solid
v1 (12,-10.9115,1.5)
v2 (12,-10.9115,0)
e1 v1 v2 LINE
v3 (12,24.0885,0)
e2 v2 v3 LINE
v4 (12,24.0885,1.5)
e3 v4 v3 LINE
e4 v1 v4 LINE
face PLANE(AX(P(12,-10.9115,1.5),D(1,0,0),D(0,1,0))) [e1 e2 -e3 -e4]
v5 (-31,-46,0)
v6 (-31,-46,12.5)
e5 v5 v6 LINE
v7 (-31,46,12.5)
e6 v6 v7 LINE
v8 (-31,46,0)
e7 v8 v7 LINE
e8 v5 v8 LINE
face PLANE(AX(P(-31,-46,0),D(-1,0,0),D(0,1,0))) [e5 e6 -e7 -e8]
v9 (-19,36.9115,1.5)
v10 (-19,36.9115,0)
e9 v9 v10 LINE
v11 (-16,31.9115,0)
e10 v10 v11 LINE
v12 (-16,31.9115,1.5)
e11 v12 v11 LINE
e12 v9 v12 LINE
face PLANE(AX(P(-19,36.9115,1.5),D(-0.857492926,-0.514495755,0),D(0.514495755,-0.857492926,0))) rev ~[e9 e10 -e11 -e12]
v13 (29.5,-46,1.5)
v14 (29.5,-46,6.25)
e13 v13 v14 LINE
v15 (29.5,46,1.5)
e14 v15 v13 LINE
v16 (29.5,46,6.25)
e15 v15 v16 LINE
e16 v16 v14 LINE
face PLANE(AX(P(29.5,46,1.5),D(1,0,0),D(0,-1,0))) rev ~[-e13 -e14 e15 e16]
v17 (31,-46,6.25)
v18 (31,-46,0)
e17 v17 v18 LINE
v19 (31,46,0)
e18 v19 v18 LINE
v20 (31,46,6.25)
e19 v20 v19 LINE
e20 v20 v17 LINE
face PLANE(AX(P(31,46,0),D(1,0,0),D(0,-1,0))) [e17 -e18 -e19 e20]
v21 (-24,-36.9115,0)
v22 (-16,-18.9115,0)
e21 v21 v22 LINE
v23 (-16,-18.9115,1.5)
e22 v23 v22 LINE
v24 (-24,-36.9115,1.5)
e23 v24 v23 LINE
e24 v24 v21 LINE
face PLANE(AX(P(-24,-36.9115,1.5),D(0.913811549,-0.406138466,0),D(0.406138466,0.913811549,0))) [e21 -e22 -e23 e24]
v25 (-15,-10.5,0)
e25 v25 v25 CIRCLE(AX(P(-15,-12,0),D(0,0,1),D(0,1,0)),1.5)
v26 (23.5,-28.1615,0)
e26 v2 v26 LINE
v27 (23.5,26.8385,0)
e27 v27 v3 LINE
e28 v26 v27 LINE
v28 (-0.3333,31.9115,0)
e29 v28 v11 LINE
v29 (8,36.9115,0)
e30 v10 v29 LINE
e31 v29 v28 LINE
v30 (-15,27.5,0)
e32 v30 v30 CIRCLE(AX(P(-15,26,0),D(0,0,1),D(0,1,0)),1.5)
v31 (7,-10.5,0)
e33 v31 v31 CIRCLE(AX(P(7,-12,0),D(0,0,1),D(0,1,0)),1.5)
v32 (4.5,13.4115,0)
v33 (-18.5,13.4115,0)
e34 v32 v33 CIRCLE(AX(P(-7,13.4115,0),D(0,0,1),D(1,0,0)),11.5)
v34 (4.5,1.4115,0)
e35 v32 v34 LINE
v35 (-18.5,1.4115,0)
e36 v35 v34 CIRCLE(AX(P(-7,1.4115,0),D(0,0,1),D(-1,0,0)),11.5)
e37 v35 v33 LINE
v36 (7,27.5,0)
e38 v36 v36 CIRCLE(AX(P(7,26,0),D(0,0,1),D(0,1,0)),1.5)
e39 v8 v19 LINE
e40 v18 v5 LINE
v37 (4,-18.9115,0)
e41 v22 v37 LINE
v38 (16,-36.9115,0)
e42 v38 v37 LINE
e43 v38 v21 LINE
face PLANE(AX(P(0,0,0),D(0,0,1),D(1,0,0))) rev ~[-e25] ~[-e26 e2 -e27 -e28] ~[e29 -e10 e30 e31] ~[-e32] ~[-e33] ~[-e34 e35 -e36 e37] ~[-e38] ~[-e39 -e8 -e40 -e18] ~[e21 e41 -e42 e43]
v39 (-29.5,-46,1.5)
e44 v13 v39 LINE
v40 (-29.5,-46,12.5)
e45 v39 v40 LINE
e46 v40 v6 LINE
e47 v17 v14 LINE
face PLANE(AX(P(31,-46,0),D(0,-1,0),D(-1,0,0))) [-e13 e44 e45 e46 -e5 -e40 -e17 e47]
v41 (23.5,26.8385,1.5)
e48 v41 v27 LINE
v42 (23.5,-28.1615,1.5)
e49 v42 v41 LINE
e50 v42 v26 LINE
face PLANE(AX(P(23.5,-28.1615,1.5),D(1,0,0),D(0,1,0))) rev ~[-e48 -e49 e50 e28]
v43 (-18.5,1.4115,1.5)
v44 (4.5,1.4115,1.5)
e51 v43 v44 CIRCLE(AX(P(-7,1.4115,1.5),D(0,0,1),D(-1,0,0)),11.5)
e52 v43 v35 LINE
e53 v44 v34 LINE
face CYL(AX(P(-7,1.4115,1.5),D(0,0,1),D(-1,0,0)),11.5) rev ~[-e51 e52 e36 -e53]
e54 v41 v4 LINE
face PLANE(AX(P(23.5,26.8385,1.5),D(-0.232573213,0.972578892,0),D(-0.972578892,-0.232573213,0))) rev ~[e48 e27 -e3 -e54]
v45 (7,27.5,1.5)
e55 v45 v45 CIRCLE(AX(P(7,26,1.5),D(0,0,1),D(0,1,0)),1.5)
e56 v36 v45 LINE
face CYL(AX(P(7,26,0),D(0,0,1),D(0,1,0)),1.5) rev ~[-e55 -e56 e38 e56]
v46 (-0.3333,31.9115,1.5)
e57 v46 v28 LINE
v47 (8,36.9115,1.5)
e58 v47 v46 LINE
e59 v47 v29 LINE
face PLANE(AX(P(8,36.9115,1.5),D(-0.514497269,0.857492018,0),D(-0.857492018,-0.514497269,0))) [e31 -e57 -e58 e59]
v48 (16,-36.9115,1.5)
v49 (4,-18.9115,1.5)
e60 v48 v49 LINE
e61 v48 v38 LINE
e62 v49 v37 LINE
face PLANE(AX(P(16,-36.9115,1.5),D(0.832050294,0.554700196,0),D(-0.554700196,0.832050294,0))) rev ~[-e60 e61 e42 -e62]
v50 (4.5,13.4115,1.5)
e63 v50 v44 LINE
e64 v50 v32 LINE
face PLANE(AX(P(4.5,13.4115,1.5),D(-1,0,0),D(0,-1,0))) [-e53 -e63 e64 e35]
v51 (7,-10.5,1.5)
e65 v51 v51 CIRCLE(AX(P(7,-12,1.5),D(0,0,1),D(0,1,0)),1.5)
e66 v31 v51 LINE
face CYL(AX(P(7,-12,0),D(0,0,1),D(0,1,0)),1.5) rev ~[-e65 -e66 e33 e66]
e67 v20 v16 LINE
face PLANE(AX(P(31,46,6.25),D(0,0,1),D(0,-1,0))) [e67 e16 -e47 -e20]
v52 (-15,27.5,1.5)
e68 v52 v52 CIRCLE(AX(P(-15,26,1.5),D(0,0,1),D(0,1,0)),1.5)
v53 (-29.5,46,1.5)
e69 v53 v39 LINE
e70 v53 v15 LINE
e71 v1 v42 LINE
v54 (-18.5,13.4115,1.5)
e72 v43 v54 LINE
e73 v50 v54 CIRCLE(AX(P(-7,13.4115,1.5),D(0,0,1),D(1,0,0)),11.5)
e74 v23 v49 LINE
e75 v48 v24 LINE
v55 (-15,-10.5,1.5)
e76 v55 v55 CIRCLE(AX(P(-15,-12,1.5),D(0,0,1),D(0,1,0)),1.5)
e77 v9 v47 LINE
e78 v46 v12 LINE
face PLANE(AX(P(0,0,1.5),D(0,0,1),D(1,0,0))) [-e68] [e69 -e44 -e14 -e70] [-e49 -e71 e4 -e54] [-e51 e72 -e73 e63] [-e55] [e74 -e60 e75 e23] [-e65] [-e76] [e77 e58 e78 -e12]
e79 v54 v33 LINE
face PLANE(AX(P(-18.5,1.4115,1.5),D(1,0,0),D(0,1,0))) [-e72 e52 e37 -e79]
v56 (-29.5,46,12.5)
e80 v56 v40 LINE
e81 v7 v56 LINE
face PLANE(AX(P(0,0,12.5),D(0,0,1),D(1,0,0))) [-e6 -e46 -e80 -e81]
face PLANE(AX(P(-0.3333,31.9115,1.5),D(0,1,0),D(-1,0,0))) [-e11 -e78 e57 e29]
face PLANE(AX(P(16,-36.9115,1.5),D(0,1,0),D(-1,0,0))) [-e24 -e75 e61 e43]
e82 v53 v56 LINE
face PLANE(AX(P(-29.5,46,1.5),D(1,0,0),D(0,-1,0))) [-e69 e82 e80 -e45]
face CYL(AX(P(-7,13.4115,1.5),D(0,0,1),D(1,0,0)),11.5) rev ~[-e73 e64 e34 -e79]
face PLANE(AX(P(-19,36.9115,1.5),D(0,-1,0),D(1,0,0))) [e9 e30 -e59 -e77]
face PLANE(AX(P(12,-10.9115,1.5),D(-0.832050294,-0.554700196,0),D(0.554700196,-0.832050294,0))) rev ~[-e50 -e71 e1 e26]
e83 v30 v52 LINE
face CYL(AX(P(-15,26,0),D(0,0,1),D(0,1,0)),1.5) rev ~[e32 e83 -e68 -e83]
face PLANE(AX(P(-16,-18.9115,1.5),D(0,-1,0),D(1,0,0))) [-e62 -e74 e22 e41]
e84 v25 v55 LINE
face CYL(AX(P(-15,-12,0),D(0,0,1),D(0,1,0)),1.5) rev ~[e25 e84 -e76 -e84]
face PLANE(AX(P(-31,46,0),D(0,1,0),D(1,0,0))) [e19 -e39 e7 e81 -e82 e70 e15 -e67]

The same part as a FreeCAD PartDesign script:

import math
import FreeCAD as App
import Part
import Sketcher
from FreeCAD import Vector
Q = App.Units.Quantity

doc = App.newDocument("Part")
params = doc.addObject("Spreadsheet::Sheet", "Params")
for row, (alias, value) in enumerate([
    ("sketch1_width", "62 mm"),
    ("sketch1_height", "92 mm"),
    ("pad1_length", "1.5 mm"),
    ("sketch2_diameter", "3 mm"),
    ("hole_diameter", "3 mm"),
    ("sketch3_width", "1.5 mm"),
    ("sketch3_height", "92 mm"),
    ("pad2_length", "11 mm"),
    ("sketch4_width", "92 mm"),
    ("sketch4_height", "6.25 mm"),
    ("pocket1_length", "1.5 mm"),
    ("sketch5_radius", "11.5 mm"),
    ("sketch5_width", "27 mm"),
    ("sketch5_width2", "20 mm"),
    ("sketch5_width3", "40 mm"),
    ("sketch5_height", "12 mm"),
    ("pocket2_length", "1.5 mm"),
], start=1):
    params.set(f"A{row}", alias)
    params.set(f"B{row}", "=" + value)
    params.setAlias(f"B{row}", alias)

body = doc.addObject("PartDesign::Body", "Body")

# Sketch on XY plane
sketch1 = doc.addObject("Sketcher::SketchObject", "Sketch")
body.addObject(sketch1)
sketch1.AttachmentSupport = (doc.XY_Plane, [""])
sketch1.MapMode = "FlatFace"
sketch1.addGeometry([
    Part.LineSegment(Vector(31, 46, 0), Vector(-31, 46, 0)),
    Part.LineSegment(Vector(-31, 46, 0), Vector(-31, -46, 0)),
    Part.LineSegment(Vector(-31, -46, 0), Vector(31, -46, 0)),
    Part.LineSegment(Vector(31, -46, 0), Vector(31, 46, 0)),
], False)
sketch1.addConstraint([
    Sketcher.Constraint("Coincident", 0, 2, 1, 1),
    Sketcher.Constraint("Coincident", 1, 2, 2, 1),
    Sketcher.Constraint("Coincident", 2, 2, 3, 1),
    Sketcher.Constraint("Coincident", 3, 2, 0, 1),
    Sketcher.Constraint("Horizontal", 0),
    Sketcher.Constraint("Vertical", 1),
    Sketcher.Constraint("Horizontal", 2),
    Sketcher.Constraint("Vertical", 3),
    Sketcher.Constraint("Symmetric", 0, 2, 2, 2, -1, 1),
    Sketcher.Constraint("DistanceX", 0, 2, 0, 1, Q("62 mm")),
    Sketcher.Constraint("DistanceY", 1, 2, 1, 1, Q("92 mm")),
])
sketch1.setExpression("Constraints[9]", "Params.sketch1_width")
sketch1.setExpression("Constraints[10]", "Params.sketch1_height")
pad1 = doc.addObject("PartDesign::Pad", "Pad")
body.addObject(pad1)
pad1.Profile = sketch1
pad1.setExpression("Length", "Params.pad1_length")

# Sketch on XY plane
sketch2 = doc.addObject("Sketcher::SketchObject", "Sketch001")
body.addObject(sketch2)
sketch2.AttachmentSupport = (doc.XY_Plane, [""])
sketch2.MapMode = "FlatFace"
sketch2.addGeometry([
    Part.Circle(Vector(-15, -12, 0), Vector(0, 0, 1), 1.5),
    Part.Circle(Vector(-15, 26, 0), Vector(0, 0, 1), 1.5),
    Part.Circle(Vector(7, 26, 0), Vector(0, 0, 1), 1.5),
    Part.Circle(Vector(7, -12, 0), Vector(0, 0, 1), 1.5),
], False)
sketch2.addConstraint([
    Sketcher.Constraint("Equal", 0, 1),
    Sketcher.Constraint("Equal", 1, 2),
    Sketcher.Constraint("Equal", 2, 3),
    Sketcher.Constraint("Horizontal", 1, 3, 2, 3),
    Sketcher.Constraint("Horizontal", 0, 3, 3, 3),
    Sketcher.Constraint("Vertical", 0, 3, 1, 3),
    Sketcher.Constraint("Vertical", 2, 3, 3, 3),
    Sketcher.Constraint("Diameter", 0, Q("3 mm")),
    Sketcher.Constraint("DistanceX", 0, 3, -1, 1, Q("15 mm")),
    Sketcher.Constraint("DistanceY", 0, 3, -1, 1, Q("12 mm")),
    Sketcher.Constraint("DistanceY", -1, 1, 1, 3, Q("26 mm")),
    Sketcher.Constraint("DistanceX", -1, 1, 2, 3, Q("7 mm")),
])
sketch2.setExpression("Constraints[7]", "Params.sketch2_diameter")
doc.recompute()
hole = doc.addObject("PartDesign::Hole", "Hole")
body.addObject(hole)
hole.Profile = sketch2
hole.ThreadType = "None"
hole.setExpression("Diameter", "Params.hole_diameter")
hole.DepthType = "ThroughAll"
hole.Reversed = True

# Sketch on XY plane
sketch3 = doc.addObject("Sketcher::SketchObject", "Sketch002")
body.addObject(sketch3)
sketch3.AttachmentSupport = (doc.XY_Plane, [""])
sketch3.MapMode = "FlatFace"
sketch3.AttachmentOffset = App.Placement(Vector(0, 0, 1.5), App.Rotation())
sketch3.addGeometry([
    Part.LineSegment(Vector(29.5, 46, 0), Vector(29.5, -46, 0)),  # 0
    Part.LineSegment(Vector(29.5, -46, 0), Vector(31, -46, 0)),  # 1
    Part.LineSegment(Vector(31, -46, 0), Vector(31, 46, 0)),  # 2
    Part.LineSegment(Vector(31, 46, 0), Vector(29.5, 46, 0)),  # 3
    Part.LineSegment(Vector(-31, 46, 0), Vector(-31, -46, 0)),  # 4
    Part.LineSegment(Vector(-31, -46, 0), Vector(-29.5, -46, 0)),  # 5
    Part.LineSegment(Vector(-29.5, -46, 0), Vector(-29.5, 46, 0)),  # 6
    Part.LineSegment(Vector(-29.5, 46, 0), Vector(-31, 46, 0)),  # 7
], False)
sketch3.addConstraint([
    Sketcher.Constraint("Coincident", 0, 2, 1, 1),
    Sketcher.Constraint("Coincident", 1, 2, 2, 1),
    Sketcher.Constraint("Coincident", 2, 2, 3, 1),
    Sketcher.Constraint("Coincident", 3, 2, 0, 1),
    Sketcher.Constraint("Coincident", 4, 2, 5, 1),
    Sketcher.Constraint("Coincident", 5, 2, 6, 1),
    Sketcher.Constraint("Coincident", 6, 2, 7, 1),
    Sketcher.Constraint("Coincident", 7, 2, 4, 1),
    Sketcher.Constraint("Vertical", 0),
    Sketcher.Constraint("Horizontal", 1),
    Sketcher.Constraint("Vertical", 2),
    Sketcher.Constraint("Horizontal", 3),
    Sketcher.Constraint("Vertical", 4),
    Sketcher.Constraint("Horizontal", 5),
    Sketcher.Constraint("Vertical", 6),
    Sketcher.Constraint("Horizontal", 7),
    Sketcher.Constraint("Symmetric", 2, 2, 4, 2, -1, 1),
    Sketcher.Constraint("Symmetric", 0, 2, 6, 2, -1, 1),
    Sketcher.Constraint("Horizontal", 1, 2, 4, 2),
    Sketcher.Constraint("DistanceX", 1, 1, 1, 2, Q("1.5 mm")),
    Sketcher.Constraint("DistanceX", 5, 2, 0, 2, Q("59 mm")),
    Sketcher.Constraint("DistanceY", 0, 2, 0, 1, Q("92 mm")),
])
sketch3.setExpression("Constraints[19]", "Params.sketch3_width")
sketch3.setExpression("Constraints[21]", "Params.sketch3_height")
pad2 = doc.addObject("PartDesign::Pad", "Pad001")
body.addObject(pad2)
pad2.Profile = sketch3
pad2.setExpression("Length", "Params.pad2_length")

# Sketch on YZ plane
sketch4 = doc.addObject("Sketcher::SketchObject", "Sketch003")
body.addObject(sketch4)
sketch4.AttachmentSupport = (doc.YZ_Plane, [""])
sketch4.MapMode = "FlatFace"
sketch4.AttachmentOffset = App.Placement(Vector(0, 0, 31), App.Rotation())
sketch4.addGeometry([
    Part.LineSegment(Vector(-46, 12, 0), Vector(-46, 6, 0)),
    Part.LineSegment(Vector(-46, 6, 0), Vector(46, 6, 0)),
    Part.LineSegment(Vector(46, 6, 0), Vector(46, 12, 0)),
    Part.LineSegment(Vector(46, 12, 0), Vector(-46, 12, 0)),
], False)
sketch4.addConstraint([
    Sketcher.Constraint("Coincident", 0, 2, 1, 1),
    Sketcher.Constraint("Coincident", 1, 2, 2, 1),
    Sketcher.Constraint("Coincident", 2, 2, 3, 1),
    Sketcher.Constraint("Coincident", 3, 2, 0, 1),
    Sketcher.Constraint("Vertical", 0),
    Sketcher.Constraint("Horizontal", 1),
    Sketcher.Constraint("Vertical", 2),
    Sketcher.Constraint("Horizontal", 3),
    Sketcher.Constraint("DistanceX", 1, 1, 1, 2, Q("92 mm")),
    Sketcher.Constraint("DistanceX", 0, 2, -1, 1, Q("46 mm")),
    Sketcher.Constraint("DistanceY", 0, 2, 0, 1, Q("6.25 mm")),
    Sketcher.Constraint("DistanceY", -1, 1, 2, 2, Q("12.5 mm")),
])
sketch4.setExpression("Constraints[8]", "Params.sketch4_width")
sketch4.setExpression("Constraints[10]", "Params.sketch4_height")
pocket1 = doc.addObject("PartDesign::Pocket", "Pocket")
body.addObject(pocket1)
pocket1.Profile = sketch4
pocket1.setExpression("Length", "Params.pocket1_length")

# Sketch on XY plane
sketch5 = doc.addObject("Sketcher::SketchObject", "Sketch004")
body.addObject(sketch5)
sketch5.AttachmentSupport = (doc.XY_Plane, [""])
sketch5.MapMode = "FlatFace"
sketch5.AttachmentOffset = App.Placement(Vector(0, 0, 1.5), App.Rotation())
sketch5.addGeometry([
    Part.LineSegment(Vector(4, 1, 0), Vector(4, 13, 0)),  # 0
    Part.ArcOfCircle(Part.Circle(Vector(-7, 13, 0), Vector(0, 0, 1), 12), math.radians(0), math.radians(180)),  # 1
    Part.LineSegment(Vector(-18, 13, 0), Vector(-18, 1, 0)),  # 2
    Part.ArcOfCircle(Part.Circle(Vector(-7, 1, 0), Vector(0, 0, 1), 12), math.radians(180), math.radians(360)),  # 3
    Part.LineSegment(Vector(8, 37, 0), Vector(-19, 37, 0)),  # 4
    Part.LineSegment(Vector(-19, 37, 0), Vector(-16, 32, 0)),  # 5
    Part.LineSegment(Vector(-16, 32, 0), Vector(0, 32, 0)),  # 6
    Part.LineSegment(Vector(0, 32, 0), Vector(8, 37, 0)),  # 7
    Part.LineSegment(Vector(4, -19, 0), Vector(-16, -19, 0)),  # 8
    Part.LineSegment(Vector(-16, -19, 0), Vector(-24, -37, 0)),  # 9
    Part.LineSegment(Vector(-24, -37, 0), Vector(16, -37, 0)),  # 10
    Part.LineSegment(Vector(16, -37, 0), Vector(4, -19, 0)),  # 11
    Part.LineSegment(Vector(12, 24, 0), Vector(12, -11, 0)),  # 12
    Part.LineSegment(Vector(12, -11, 0), Vector(24, -28, 0)),  # 13
    Part.LineSegment(Vector(24, -28, 0), Vector(24, 27, 0)),  # 14
    Part.LineSegment(Vector(24, 27, 0), Vector(12, 24, 0)),  # 15
], False)
sketch5.addConstraint([
    Sketcher.Constraint("Tangent", 0, 2, 1, 1),
    Sketcher.Constraint("Tangent", 1, 2, 2, 1),
    Sketcher.Constraint("Tangent", 2, 2, 3, 1),
    Sketcher.Constraint("Tangent", 3, 2, 0, 1),
    Sketcher.Constraint("Coincident", 4, 2, 5, 1),
    Sketcher.Constraint("Coincident", 5, 2, 6, 1),
    Sketcher.Constraint("Coincident", 6, 2, 7, 1),
    Sketcher.Constraint("Coincident", 7, 2, 4, 1),
    Sketcher.Constraint("Coincident", 8, 2, 9, 1),
    Sketcher.Constraint("Coincident", 9, 2, 10, 1),
    Sketcher.Constraint("Coincident", 10, 2, 11, 1),
    Sketcher.Constraint("Coincident", 11, 2, 8, 1),
    Sketcher.Constraint("Coincident", 12, 2, 13, 1),
    Sketcher.Constraint("Coincident", 13, 2, 14, 1),
    Sketcher.Constraint("Coincident", 14, 2, 15, 1),
    Sketcher.Constraint("Coincident", 15, 2, 12, 1),
    Sketcher.Constraint("Vertical", 0),
    Sketcher.Constraint("Vertical", 2),
    Sketcher.Constraint("Horizontal", 4),
    Sketcher.Constraint("Horizontal", 6),
    Sketcher.Constraint("Horizontal", 8),
    Sketcher.Constraint("Horizontal", 10),
    Sketcher.Constraint("Vertical", 12),
    Sketcher.Constraint("Vertical", 14),
    Sketcher.Constraint("Perpendicular", 5, 7),
    Sketcher.Constraint("Parallel", 11, 13),
    Sketcher.Constraint("Vertical", 5, 2, 8, 2),
    Sketcher.Constraint("Radius", 1, Q("11.5 mm")),
    Sketcher.Constraint("DistanceX", 4, 2, 4, 1, Q("27 mm")),
    Sketcher.Constraint("DistanceX", 8, 2, 8, 1, Q("20 mm")),
    Sketcher.Constraint("DistanceX", 10, 1, 10, 2, Q("40 mm")),
    Sketcher.Constraint("DistanceY", 0, 1, 0, 2, Q("12 mm")),
    Sketcher.Constraint("DistanceY", 12, 2, 12, 1, Q("35 mm")),
    Sketcher.Constraint("DistanceY", 14, 1, 14, 2, Q("55 mm")),
    Sketcher.Constraint("DistanceX", -1, 1, 12, 2, Q("12 mm")),
    Sketcher.Constraint("DistanceX", 4, 2, 1, 3, Q("12 mm")),
    Sketcher.Constraint("DistanceY", 5, 2, 4, 2, Q("5 mm")),
    Sketcher.Constraint("DistanceY", 9, 2, 8, 2, Q("18 mm")),
    Sketcher.Constraint("DistanceX", 3, 3, 10, 2, Q("23 mm")),
    Sketcher.Constraint("DistanceX", 11, 2, 10, 2, Q("12 mm")),
    Sketcher.Constraint("DistanceX", 12, 2, 13, 2, Q("11.5 mm")),
    Sketcher.Constraint("DistanceX", 1, 3, -1, 1, Q("7 mm")),
    Sketcher.Constraint("DistanceY", 11, 2, 12, 2, Q("8 mm")),
    Sketcher.Constraint("DistanceY", 1, 2, 4, 2, Q("23.5 mm")),
    Sketcher.Constraint("DistanceY", 8, 2, 2, 2, Q("20.323 mm")),
    Sketcher.Constraint("DistanceY", -1, 1, 1, 3, Q("13.4115 mm")),
])
sketch5.setExpression("Constraints[27]", "Params.sketch5_radius")
sketch5.setExpression("Constraints[28]", "Params.sketch5_width")
sketch5.setExpression("Constraints[29]", "Params.sketch5_width2")
sketch5.setExpression("Constraints[30]", "Params.sketch5_width3")
sketch5.setExpression("Constraints[31]", "Params.sketch5_height")
pocket2 = doc.addObject("PartDesign::Pocket", "Pocket001")
body.addObject(pocket2)
pocket2.Profile = sketch5
pocket2.setExpression("Length", "Params.pocket2_length")

doc.recompute()
